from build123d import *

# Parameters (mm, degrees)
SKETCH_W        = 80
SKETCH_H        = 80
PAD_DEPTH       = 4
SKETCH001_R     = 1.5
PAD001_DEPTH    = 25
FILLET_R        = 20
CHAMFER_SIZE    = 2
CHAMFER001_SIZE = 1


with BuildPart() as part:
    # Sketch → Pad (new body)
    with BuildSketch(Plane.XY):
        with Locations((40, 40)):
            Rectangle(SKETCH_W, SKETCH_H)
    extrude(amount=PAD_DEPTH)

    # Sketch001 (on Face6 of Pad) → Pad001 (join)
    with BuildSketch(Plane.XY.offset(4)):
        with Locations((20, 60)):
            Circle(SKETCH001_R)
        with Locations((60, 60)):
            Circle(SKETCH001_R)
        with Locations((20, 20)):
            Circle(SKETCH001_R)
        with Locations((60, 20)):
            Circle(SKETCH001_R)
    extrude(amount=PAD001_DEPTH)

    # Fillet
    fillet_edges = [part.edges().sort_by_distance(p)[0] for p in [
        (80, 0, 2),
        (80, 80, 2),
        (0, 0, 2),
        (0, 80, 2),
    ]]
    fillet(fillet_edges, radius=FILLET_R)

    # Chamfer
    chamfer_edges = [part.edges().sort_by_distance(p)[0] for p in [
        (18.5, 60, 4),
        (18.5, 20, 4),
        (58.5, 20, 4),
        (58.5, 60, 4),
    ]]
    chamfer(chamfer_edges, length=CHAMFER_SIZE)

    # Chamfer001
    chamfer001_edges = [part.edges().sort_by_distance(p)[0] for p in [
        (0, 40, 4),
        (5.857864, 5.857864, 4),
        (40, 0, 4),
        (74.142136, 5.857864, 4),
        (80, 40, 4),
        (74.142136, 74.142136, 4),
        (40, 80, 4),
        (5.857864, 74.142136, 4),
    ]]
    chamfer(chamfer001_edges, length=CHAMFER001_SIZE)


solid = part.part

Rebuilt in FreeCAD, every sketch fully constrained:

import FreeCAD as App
import Part
import Sketcher


def edges_at(feature, points):
    """Names of the edges that pass closest to the given points."""
    edges = feature.Shape.Edges
    near = lambda p: min(range(len(edges)), key=lambda i: edges[i].distToShape(Part.Vertex(*p))[0])
    return sorted({f"Edge{near(p) + 1}" for p in points})


def add_polygon(sketch, points):
    """Adds a closed chain of lines whose ends are joined by coincident constraints."""
    first, n = sketch.GeometryCount, len(points)
    for a, b in zip(points, points[1:] + points[:1]):
        sketch.addGeometry(Part.LineSegment(App.Vector(*a, 0), App.Vector(*b, 0)), False)
    for i in range(n):
        sketch.addConstraint(Sketcher.Constraint("Coincident", first + i, 2, first + (i + 1) % n, 1))

doc = App.newDocument("Part")
body = doc.addObject("PartDesign::Body", "Body")

sketch1 = body.newObject("Sketcher::SketchObject", "Sketch")
sketch1.AttachmentSupport = (doc.getObject("XY_Plane"), [""])
sketch1.MapMode = "FlatFace"
add_polygon(sketch1, [(0, 80), (0, 0), (80, 0), (80, 80)])
sketch1.addConstraint([
    Sketcher.Constraint("Vertical", 0),
    Sketcher.Constraint("Horizontal", 1),
    Sketcher.Constraint("Vertical", 2),
    Sketcher.Constraint("Horizontal", 3),
    Sketcher.Constraint("Coincident", 0, 2, -1, 1),
    Sketcher.Constraint("Equal", 3, 0),
    Sketcher.Constraint("DistanceX", 1, 1, 1, 2, 80.0),
])
pad1 = body.newObject("PartDesign::Pad", "Pad")
pad1.Profile = sketch1
pad1.Length = 4

sketch2 = body.newObject("Sketcher::SketchObject", "Sketch001")
sketch2.AttachmentSupport = (doc.getObject("XY_Plane"), [""])
sketch2.MapMode = "FlatFace"
sketch2.AttachmentOffset = App.Placement(App.Vector(0, 0, 4), App.Rotation())
sketch2.addGeometry([
    Part.Circle(App.Vector(20, 60, 0), App.Vector(0, 0, 1), 1.5),
    Part.Circle(App.Vector(60, 60, 0), App.Vector(0, 0, 1), 1.5),
    Part.Circle(App.Vector(20, 20, 0), App.Vector(0, 0, 1), 1.5),
    Part.Circle(App.Vector(60, 20, 0), App.Vector(0, 0, 1), 1.5),
], False)
sketch2.addConstraint([
    Sketcher.Constraint("Equal", 0, 1),
    Sketcher.Constraint("Equal", 1, 2),
    Sketcher.Constraint("Equal", 2, 3),
    Sketcher.Constraint("Horizontal", 0, 3, 1, 3),
    Sketcher.Constraint("Horizontal", 2, 3, 3, 3),
    Sketcher.Constraint("Vertical", 0, 3, 2, 3),
    Sketcher.Constraint("Vertical", 1, 3, 3, 3),
    Sketcher.Constraint("Diameter", 0, 3.0),
    Sketcher.Constraint("DistanceX", -1, 1, 0, 3, 20.0),
    Sketcher.Constraint("DistanceY", -1, 1, 0, 3, 60.0),
    Sketcher.Constraint("DistanceX", -1, 1, 1, 3, 60.0),
    Sketcher.Constraint("DistanceY", -1, 1, 2, 3, 20.0),
])
pad2 = body.newObject("PartDesign::Pad", "Pad001")
pad2.Profile = sketch2
pad2.Length = 25
doc.recompute()

fillet = body.newObject("PartDesign::Fillet", "Fillet")
fillet.Base = (pad2, edges_at(pad2, [
    (80, 0, 2),
    (80, 80, 2),
    (0, 0, 2),
    (0, 80, 2),
]))
fillet.Radius = 20
doc.recompute()

chamfer = body.newObject("PartDesign::Chamfer", "Chamfer")
chamfer.Base = (fillet, edges_at(fillet, [
    (18.5, 60, 4),
    (18.5, 20, 4),
    (58.5, 20, 4),
    (58.5, 60, 4),
]))
chamfer.Size = 2
doc.recompute()

chamfer2 = body.newObject("PartDesign::Chamfer", "Chamfer001")
chamfer2.Base = (chamfer, edges_at(chamfer, [
    (0, 40, 4),
    (5.858, 5.858, 4),
    (40, 0, 4),
    (74.142, 5.858, 4),
    (80, 40, 4),
    (74.142, 74.142, 4),
    (40, 80, 4),
    (5.858, 74.142, 4),
]))
chamfer2.Size = 1

doc.recompute()
